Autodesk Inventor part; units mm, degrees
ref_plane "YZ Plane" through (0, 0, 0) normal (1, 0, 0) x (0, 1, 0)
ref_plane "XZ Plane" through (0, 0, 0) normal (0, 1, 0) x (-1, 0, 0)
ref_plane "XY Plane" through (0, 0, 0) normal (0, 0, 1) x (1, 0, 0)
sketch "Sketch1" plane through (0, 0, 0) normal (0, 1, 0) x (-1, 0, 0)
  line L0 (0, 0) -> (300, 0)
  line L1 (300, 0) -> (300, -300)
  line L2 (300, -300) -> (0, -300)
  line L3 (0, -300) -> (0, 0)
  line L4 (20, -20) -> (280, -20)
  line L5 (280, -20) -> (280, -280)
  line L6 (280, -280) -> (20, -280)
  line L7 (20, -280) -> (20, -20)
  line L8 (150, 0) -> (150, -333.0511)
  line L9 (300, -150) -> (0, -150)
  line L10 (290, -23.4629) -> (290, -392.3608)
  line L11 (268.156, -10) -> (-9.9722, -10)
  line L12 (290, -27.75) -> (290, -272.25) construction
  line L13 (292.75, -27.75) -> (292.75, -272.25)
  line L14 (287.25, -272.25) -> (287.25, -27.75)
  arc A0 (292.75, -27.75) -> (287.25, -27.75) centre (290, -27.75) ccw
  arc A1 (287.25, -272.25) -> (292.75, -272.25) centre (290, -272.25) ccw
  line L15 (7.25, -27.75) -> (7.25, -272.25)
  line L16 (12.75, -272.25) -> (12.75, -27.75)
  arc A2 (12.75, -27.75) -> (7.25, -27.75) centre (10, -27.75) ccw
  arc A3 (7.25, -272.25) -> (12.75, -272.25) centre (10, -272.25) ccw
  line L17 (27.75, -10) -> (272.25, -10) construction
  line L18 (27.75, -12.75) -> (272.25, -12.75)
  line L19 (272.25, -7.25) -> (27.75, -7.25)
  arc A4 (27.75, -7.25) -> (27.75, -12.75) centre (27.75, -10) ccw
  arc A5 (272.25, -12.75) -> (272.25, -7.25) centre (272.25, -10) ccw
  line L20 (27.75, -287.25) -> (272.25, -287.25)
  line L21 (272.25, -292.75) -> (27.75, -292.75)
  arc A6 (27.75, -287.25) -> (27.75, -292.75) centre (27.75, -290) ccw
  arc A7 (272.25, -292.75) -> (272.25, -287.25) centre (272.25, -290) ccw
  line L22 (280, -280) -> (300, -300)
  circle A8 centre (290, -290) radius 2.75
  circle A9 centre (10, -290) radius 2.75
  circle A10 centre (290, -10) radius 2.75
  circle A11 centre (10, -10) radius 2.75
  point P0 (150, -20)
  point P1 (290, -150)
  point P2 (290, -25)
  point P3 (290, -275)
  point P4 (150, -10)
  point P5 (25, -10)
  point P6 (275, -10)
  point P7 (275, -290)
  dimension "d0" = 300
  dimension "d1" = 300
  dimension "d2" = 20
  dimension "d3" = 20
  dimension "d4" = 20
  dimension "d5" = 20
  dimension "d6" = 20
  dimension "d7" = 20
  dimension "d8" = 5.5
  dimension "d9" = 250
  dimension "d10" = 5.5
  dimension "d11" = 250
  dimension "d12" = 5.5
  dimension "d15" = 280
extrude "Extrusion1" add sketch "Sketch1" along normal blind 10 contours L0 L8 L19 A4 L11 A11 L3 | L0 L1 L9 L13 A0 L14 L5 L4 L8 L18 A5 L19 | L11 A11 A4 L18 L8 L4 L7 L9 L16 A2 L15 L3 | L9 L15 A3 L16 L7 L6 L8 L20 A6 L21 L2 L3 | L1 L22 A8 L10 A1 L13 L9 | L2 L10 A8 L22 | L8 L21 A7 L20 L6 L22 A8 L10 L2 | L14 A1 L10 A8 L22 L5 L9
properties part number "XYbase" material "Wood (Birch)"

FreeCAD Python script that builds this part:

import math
import FreeCAD as App
import Part
import Sketcher

doc = App.newDocument("Part")
body = doc.addObject("PartDesign::Body", "Body")

# Sketch on XZ plane
sketch1 = body.newObject("Sketcher::SketchObject", "Sketch")
sketch1.AttachmentSupport = (doc.getObject("XZ_Plane"), [""])
sketch1.MapMode = "FlatFace"
sketch1.addGeometry(Part.LineSegment(App.Vector(0, 0, 0), App.Vector(0, -300, 0)), False)
sketch1.addGeometry(Part.LineSegment(App.Vector(0, -300, 0), App.Vector(-300, -300, 0)), False)
sketch1.addGeometry(Part.LineSegment(App.Vector(-300, -300, 0), App.Vector(-300, 0, 0)), False)
sketch1.addGeometry(Part.LineSegment(App.Vector(-300, 0, 0), App.Vector(0, 0, 0)), False)
sketch1.addGeometry(Part.LineSegment(App.Vector(-27.8, -7.2, 0), App.Vector(-272.2, -7.2, 0)), False)
sketch1.addGeometry(Part.ArcOfCircle(Part.Circle(App.Vector(-272.2, -10, 0), App.Vector(0, 0, 1), 2.8), math.radians(90), math.radians(270)), False)
sketch1.addGeometry(Part.LineSegment(App.Vector(-272.2, -12.8, 0), App.Vector(-27.8, -12.8, 0)), False)
sketch1.addGeometry(Part.ArcOfCircle(Part.Circle(App.Vector(-27.8, -10, 0), App.Vector(0, 0, 1), 2.8), math.radians(-90), math.radians(90)), False)
sketch1.addGeometry(Part.Circle(App.Vector(-10, -10, 0), App.Vector(0, 0, 1), 2.8), False)
sketch1.addGeometry(Part.LineSegment(App.Vector(-292.8, -27.8, 0), App.Vector(-292.8, -272.2, 0)), False)
sketch1.addGeometry(Part.ArcOfCircle(Part.Circle(App.Vector(-290, -272.2, 0), App.Vector(0, 0, 1), 2.8), math.radians(180), math.radians(360)), False)
sketch1.addGeometry(Part.LineSegment(App.Vector(-287.2, -272.2, 0), App.Vector(-287.2, -27.8, 0)), False)
sketch1.addGeometry(Part.ArcOfCircle(Part.Circle(App.Vector(-290, -27.8, 0), App.Vector(0, 0, 1), 2.8), math.radians(0), math.radians(180)), False)
sketch1.addGeometry(Part.LineSegment(App.Vector(-280, -20, 0), App.Vector(-280, -280, 0)), False)
sketch1.addGeometry(Part.LineSegment(App.Vector(-280, -280, 0), App.Vector(-20, -280, 0)), False)
sketch1.addGeometry(Part.LineSegment(App.Vector(-20, -280, 0), App.Vector(-20, -20, 0)), False)
sketch1.addGeometry(Part.LineSegment(App.Vector(-20, -20, 0), App.Vector(-280, -20, 0)), False)
sketch1.addGeometry(Part.Circle(App.Vector(-290, -10, 0), App.Vector(0, 0, 1), 2.8), False)
sketch1.addGeometry(Part.ArcOfCircle(Part.Circle(App.Vector(-10, -27.8, 0), App.Vector(0, 0, 1), 2.8), math.radians(0), math.radians(180)), False)
sketch1.addGeometry(Part.LineSegment(App.Vector(-12.8, -27.8, 0), App.Vector(-12.8, -272.2, 0)), False)
sketch1.addGeometry(Part.ArcOfCircle(Part.Circle(App.Vector(-10, -272.2, 0), App.Vector(0, 0, 1), 2.8), math.radians(180), math.radians(360)), False)
sketch1.addGeometry(Part.LineSegment(App.Vector(-7.2, -272.2, 0), App.Vector(-7.2, -27.8, 0)), False)
sketch1.addGeometry(Part.Circle(App.Vector(-290, -290, 0), App.Vector(0, 0, 1), 2.8), False)
sketch1.addGeometry(Part.Circle(App.Vector(-10, -290, 0), App.Vector(0, 0, 1), 2.8), False)
sketch1.addGeometry(Part.LineSegment(App.Vector(-27.8, -287.2, 0), App.Vector(-272.2, -287.2, 0)), False)
sketch1.addGeometry(Part.ArcOfCircle(Part.Circle(App.Vector(-272.2, -290, 0), App.Vector(0, 0, 1), 2.8), math.radians(90), math.radians(270)), False)
sketch1.addGeometry(Part.LineSegment(App.Vector(-272.2, -292.8, 0), App.Vector(-27.8, -292.8, 0)), False)
sketch1.addGeometry(Part.ArcOfCircle(Part.Circle(App.Vector(-27.8, -290, 0), App.Vector(0, 0, 1), 2.8), math.radians(-90), math.radians(90)), False)
sketch1.addConstraint(Sketcher.Constraint("Coincident", 0, 2, 1, 1))
sketch1.addConstraint(Sketcher.Constraint("Coincident", 1, 2, 2, 1))
sketch1.addConstraint(Sketcher.Constraint("Coincident", 2, 2, 3, 1))
sketch1.addConstraint(Sketcher.Constraint("Coincident", 3, 2, 0, 1))
sketch1.addConstraint(Sketcher.Constraint("Tangent", 4, 2, 5, 1))
sketch1.addConstraint(Sketcher.Constraint("Tangent", 5, 2, 6, 1))
sketch1.addConstraint(Sketcher.Constraint("Tangent", 6, 2, 7, 1))
sketch1.addConstraint(Sketcher.Constraint("Tangent", 7, 2, 4, 1))
sketch1.addConstraint(Sketcher.Constraint("Tangent", 9, 2, 10, 1))
sketch1.addConstraint(Sketcher.Constraint("Tangent", 10, 2, 11, 1))
sketch1.addConstraint(Sketcher.Constraint("Tangent", 11, 2, 12, 1))
sketch1.addConstraint(Sketcher.Constraint("Tangent", 12, 2, 9, 1))
sketch1.addConstraint(Sketcher.Constraint("Coincident", 13, 2, 14, 1))
sketch1.addConstraint(Sketcher.Constraint("Coincident", 14, 2, 15, 1))
sketch1.addConstraint(Sketcher.Constraint("Coincident", 15, 2, 16, 1))
sketch1.addConstraint(Sketcher.Constraint("Coincident", 16, 2, 13, 1))
sketch1.addConstraint(Sketcher.Constraint("Tangent", 18, 2, 19, 1))
sketch1.addConstraint(Sketcher.Constraint("Tangent", 19, 2, 20, 1))
sketch1.addConstraint(Sketcher.Constraint("Tangent", 20, 2, 21, 1))
sketch1.addConstraint(Sketcher.Constraint("Tangent", 21, 2, 18, 1))
sketch1.addConstraint(Sketcher.Constraint("Tangent", 24, 2, 25, 1))
sketch1.addConstraint(Sketcher.Constraint("Tangent", 25, 2, 26, 1))
sketch1.addConstraint(Sketcher.Constraint("Tangent", 26, 2, 27, 1))
sketch1.addConstraint(Sketcher.Constraint("Tangent", 27, 2, 24, 1))
sketch1.addConstraint(Sketcher.Constraint("Vertical", 0))
sketch1.addConstraint(Sketcher.Constraint("Horizontal", 1))
sketch1.addConstraint(Sketcher.Constraint("Vertical", 2))
sketch1.addConstraint(Sketcher.Constraint("Horizontal", 3))
sketch1.addConstraint(Sketcher.Constraint("Horizontal", 4))
sketch1.addConstraint(Sketcher.Constraint("Horizontal", 6))
sketch1.addConstraint(Sketcher.Constraint("Vertical", 9))
sketch1.addConstraint(Sketcher.Constraint("Vertical", 11))
sketch1.addConstraint(Sketcher.Constraint("Vertical", 13))
sketch1.addConstraint(Sketcher.Constraint("Horizontal", 14))
sketch1.addConstraint(Sketcher.Constraint("Vertical", 15))
sketch1.addConstraint(Sketcher.Constraint("Horizontal", 16))
sketch1.addConstraint(Sketcher.Constraint("Vertical", 19))
sketch1.addConstraint(Sketcher.Constraint("Vertical", 21))
sketch1.addConstraint(Sketcher.Constraint("Horizontal", 24))
sketch1.addConstraint(Sketcher.Constraint("Horizontal", 26))
sketch1.addConstraint(Sketcher.Constraint("Coincident", 3, 2, -1, 1))
sketch1.addConstraint(Sketcher.Constraint("Equal", 7, 8))
sketch1.addConstraint(Sketcher.Constraint("Equal", 8, 10))
sketch1.addConstraint(Sketcher.Constraint("Equal", 12, 17))
sketch1.addConstraint(Sketcher.Constraint("Equal", 17, 18))
sketch1.addConstraint(Sketcher.Constraint("Equal", 20, 22))
sketch1.addConstraint(Sketcher.Constraint("Equal", 22, 23))
sketch1.addConstraint(Sketcher.Constraint("Equal", 23, 25))
sketch1.addConstraint(Sketcher.Constraint("Horizontal", 7, 3, 8, 3))
sketch1.addConstraint(Sketcher.Constraint("Horizontal", 8, 3, 17, 3))
sketch1.addConstraint(Sketcher.Constraint("Horizontal", 12, 3, 18, 3))
sketch1.addConstraint(Sketcher.Constraint("Horizontal", 10, 3, 20, 3))
sketch1.addConstraint(Sketcher.Constraint("Horizontal", 22, 3, 23, 3))
sketch1.addConstraint(Sketcher.Constraint("Horizontal", 23, 3, 25, 3))
sketch1.addConstraint(Sketcher.Constraint("Vertical", 12, 3, 17, 3))
sketch1.addConstraint(Sketcher.Constraint("Vertical", 8, 3, 18, 3))
sketch1.addConstraint(Sketcher.Constraint("Vertical", 17, 3, 22, 3))
sketch1.addConstraint(Sketcher.Constraint("Vertical", 20, 3, 23, 3))
sketch1.addConstraint(Sketcher.Constraint("Vertical", 5, 3, 25, 3))
sketch1.addConstraint(Sketcher.Constraint("Vertical", 7, 3, 27, 3))
sketch1.addConstraint(Sketcher.Constraint("Equal", 3, 0))
sketch1.addConstraint(Sketcher.Constraint("Equal", 26, 9))
sketch1.addConstraint(Sketcher.Constraint("Equal", 16, 13))
sketch1.addConstraint(Sketcher.Constraint("Diameter", 8, 5.5))
sketch1.addConstraint(Sketcher.Constraint("DistanceX", 1, 2, 1, 1, 300.0))
sketch1.addConstraint(Sketcher.Constraint("DistanceX", 13, 2, -1, 1, 280.0))
sketch1.addConstraint(Sketcher.Constraint("DistanceY", 13, 2, -1, 1, 280.0))
sketch1.addConstraint(Sketcher.Constraint("DistanceX", 14, 2, -1, 1, 20.0))
sketch1.addConstraint(Sketcher.Constraint("DistanceX", 10, 3, 8, 3, 280.0))
sketch1.addConstraint(Sketcher.Constraint("DistanceY", 22, 3, 17, 3, 280.0))
sketch1.addConstraint(Sketcher.Constraint("DistanceX", 4, 2, 4, 1, 244.5))
sketch1.addConstraint(Sketcher.Constraint("DistanceY", 5, 3, -1, 1, 10.0))
sketch1.addConstraint(Sketcher.Constraint("DistanceX", 8, 3, -1, 1, 10.0))
sketch1.addConstraint(Sketcher.Constraint("DistanceY", 12, 3, 5, 2, 15.0))
sketch1.addConstraint(Sketcher.Constraint("DistanceX", 10, 2, 25, 3, 15.0))
pad1 = body.newObject("PartDesign::Pad", "Pad")
pad1.Profile = sketch1
pad1.Length = 10
pad1.Reversed = True

doc.recompute()
